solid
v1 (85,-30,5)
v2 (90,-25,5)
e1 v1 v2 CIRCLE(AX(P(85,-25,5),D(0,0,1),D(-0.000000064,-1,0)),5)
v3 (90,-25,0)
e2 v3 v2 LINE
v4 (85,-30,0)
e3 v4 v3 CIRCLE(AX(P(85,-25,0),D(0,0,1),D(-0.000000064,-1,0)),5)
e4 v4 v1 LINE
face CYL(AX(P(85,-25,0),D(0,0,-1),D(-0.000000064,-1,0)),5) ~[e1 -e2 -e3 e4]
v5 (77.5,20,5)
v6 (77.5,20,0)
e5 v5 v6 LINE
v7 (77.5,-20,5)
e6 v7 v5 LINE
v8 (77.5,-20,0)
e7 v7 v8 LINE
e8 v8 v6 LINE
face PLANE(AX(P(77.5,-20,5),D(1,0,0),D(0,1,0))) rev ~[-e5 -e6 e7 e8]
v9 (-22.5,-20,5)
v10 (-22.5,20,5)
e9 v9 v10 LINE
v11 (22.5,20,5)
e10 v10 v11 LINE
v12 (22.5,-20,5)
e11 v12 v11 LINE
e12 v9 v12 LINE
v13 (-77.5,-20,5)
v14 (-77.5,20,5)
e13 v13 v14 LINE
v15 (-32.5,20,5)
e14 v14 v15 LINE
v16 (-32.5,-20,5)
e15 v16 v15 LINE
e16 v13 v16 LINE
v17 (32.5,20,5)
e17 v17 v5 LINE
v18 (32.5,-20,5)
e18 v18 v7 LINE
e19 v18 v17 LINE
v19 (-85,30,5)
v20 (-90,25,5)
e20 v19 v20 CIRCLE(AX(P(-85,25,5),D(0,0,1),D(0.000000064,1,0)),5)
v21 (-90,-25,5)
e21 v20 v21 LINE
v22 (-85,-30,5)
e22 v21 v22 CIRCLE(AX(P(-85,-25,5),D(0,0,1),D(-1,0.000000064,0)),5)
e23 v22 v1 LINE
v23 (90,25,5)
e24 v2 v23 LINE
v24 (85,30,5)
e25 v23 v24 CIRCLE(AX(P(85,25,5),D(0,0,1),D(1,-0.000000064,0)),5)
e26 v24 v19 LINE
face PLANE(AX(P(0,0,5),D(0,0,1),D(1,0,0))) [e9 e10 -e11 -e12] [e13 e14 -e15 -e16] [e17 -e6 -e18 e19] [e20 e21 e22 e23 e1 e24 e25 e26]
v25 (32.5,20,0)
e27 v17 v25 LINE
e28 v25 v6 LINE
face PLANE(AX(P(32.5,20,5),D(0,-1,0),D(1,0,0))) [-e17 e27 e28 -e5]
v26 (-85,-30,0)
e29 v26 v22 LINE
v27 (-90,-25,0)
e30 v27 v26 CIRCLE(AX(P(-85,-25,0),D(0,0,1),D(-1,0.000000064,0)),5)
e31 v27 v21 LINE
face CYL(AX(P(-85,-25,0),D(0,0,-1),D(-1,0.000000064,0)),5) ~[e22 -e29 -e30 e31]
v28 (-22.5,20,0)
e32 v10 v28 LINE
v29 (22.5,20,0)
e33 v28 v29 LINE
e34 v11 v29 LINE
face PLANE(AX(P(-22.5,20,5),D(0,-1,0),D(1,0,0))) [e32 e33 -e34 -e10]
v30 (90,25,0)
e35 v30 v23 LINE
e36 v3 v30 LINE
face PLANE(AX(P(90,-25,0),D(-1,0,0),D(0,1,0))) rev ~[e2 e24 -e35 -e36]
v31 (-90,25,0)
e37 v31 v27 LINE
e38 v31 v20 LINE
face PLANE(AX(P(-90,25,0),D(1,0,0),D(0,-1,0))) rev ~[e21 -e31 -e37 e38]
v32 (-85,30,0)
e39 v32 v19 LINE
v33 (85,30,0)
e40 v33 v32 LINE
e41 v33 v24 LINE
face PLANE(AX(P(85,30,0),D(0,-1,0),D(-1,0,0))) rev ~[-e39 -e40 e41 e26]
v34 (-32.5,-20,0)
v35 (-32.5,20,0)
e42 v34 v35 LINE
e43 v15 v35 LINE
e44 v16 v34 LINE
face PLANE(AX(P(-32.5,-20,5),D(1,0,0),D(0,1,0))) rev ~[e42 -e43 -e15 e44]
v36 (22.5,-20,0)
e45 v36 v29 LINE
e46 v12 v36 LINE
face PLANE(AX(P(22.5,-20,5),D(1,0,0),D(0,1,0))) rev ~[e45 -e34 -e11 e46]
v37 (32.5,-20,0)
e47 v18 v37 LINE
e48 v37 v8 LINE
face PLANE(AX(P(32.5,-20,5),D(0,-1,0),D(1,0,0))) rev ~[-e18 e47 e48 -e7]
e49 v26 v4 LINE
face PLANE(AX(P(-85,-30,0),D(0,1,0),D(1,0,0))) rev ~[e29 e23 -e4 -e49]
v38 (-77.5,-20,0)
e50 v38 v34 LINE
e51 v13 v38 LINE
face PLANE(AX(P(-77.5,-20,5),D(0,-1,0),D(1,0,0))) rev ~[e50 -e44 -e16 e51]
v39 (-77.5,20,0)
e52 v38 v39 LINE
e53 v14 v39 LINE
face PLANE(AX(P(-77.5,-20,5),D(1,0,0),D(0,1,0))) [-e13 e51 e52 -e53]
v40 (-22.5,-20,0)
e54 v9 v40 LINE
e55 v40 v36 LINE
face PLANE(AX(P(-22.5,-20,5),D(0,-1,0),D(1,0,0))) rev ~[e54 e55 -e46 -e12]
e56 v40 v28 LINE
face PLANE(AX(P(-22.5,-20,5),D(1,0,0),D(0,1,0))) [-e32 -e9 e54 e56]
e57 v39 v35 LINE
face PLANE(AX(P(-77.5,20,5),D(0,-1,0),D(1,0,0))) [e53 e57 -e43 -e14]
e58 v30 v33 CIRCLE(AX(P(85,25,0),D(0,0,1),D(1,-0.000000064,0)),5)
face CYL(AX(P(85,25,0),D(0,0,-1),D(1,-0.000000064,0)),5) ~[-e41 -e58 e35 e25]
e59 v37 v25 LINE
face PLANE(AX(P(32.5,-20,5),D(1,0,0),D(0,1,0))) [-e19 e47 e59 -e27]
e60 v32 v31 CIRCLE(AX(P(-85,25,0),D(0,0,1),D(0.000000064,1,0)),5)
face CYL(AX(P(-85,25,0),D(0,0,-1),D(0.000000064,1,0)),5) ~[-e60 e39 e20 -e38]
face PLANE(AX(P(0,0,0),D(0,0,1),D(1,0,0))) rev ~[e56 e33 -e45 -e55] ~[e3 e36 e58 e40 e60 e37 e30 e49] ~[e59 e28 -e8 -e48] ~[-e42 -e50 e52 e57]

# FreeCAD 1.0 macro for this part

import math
import FreeCAD as App
import Part
import Sketcher
Q = App.Units.Quantity

doc = App.newDocument("Part")
params = doc.addObject("Spreadsheet::Sheet", "Params")
for row, (alias, value) in enumerate([
    ("sketch1_radius", "5 mm"),
    ("sketch1_width", "170 mm"),
    ("sketch1_height", "50 mm"),
    ("pad1_length", "5 mm"),
    ("sketch2_width", "45 mm"),
    ("sketch2_height", "40 mm"),
    ("pocket1_length", "5 mm"),
], start=1):
    params.set(f"A{row}", alias)
    params.set(f"B{row}", "=" + value)
    params.setAlias(f"B{row}", alias)

body = doc.addObject("PartDesign::Body", "Body")

sketch1 = doc.addObject("Sketcher::SketchObject", "Sketch")
body.addObject(sketch1)
sketch1.AttachmentSupport = (doc.XY_Plane, [""])
sketch1.MapMode = "FlatFace"
sketch1.addGeometry([
    Part.LineSegment(App.Vector(-85, -30, 0), App.Vector(85, -30, 0)),
    Part.ArcOfCircle(Part.Circle(App.Vector(85, -25, 0), App.Vector(0, 0, 1), 5), math.radians(-90), math.radians(0)),
    Part.LineSegment(App.Vector(90, -25, 0), App.Vector(90, 25, 0)),
    Part.ArcOfCircle(Part.Circle(App.Vector(85, 25, 0), App.Vector(0, 0, 1), 5), math.radians(0), math.radians(90)),
    Part.LineSegment(App.Vector(85, 30, 0), App.Vector(-85, 30, 0)),
    Part.ArcOfCircle(Part.Circle(App.Vector(-85, 25, 0), App.Vector(0, 0, 1), 5), math.radians(90), math.radians(180)),
    Part.LineSegment(App.Vector(-90, 25, 0), App.Vector(-90, -25, 0)),
    Part.ArcOfCircle(Part.Circle(App.Vector(-85, -25, 0), App.Vector(0, 0, 1), 5), math.radians(180), math.radians(270)),
], False)
sketch1.addConstraint([
    Sketcher.Constraint("Tangent", 0, 2, 1, 1),
    Sketcher.Constraint("Tangent", 1, 2, 2, 1),
    Sketcher.Constraint("Tangent", 2, 2, 3, 1),
    Sketcher.Constraint("Tangent", 3, 2, 4, 1),
    Sketcher.Constraint("Tangent", 4, 2, 5, 1),
    Sketcher.Constraint("Tangent", 5, 2, 6, 1),
    Sketcher.Constraint("Tangent", 6, 2, 7, 1),
    Sketcher.Constraint("Tangent", 7, 2, 0, 1),
    Sketcher.Constraint("Horizontal", 0),
    Sketcher.Constraint("Vertical", 2),
    Sketcher.Constraint("Horizontal", 4),
    Sketcher.Constraint("Vertical", 6),
    Sketcher.Constraint("Equal", 1, 3),
    Sketcher.Constraint("Equal", 3, 5),
    Sketcher.Constraint("Equal", 5, 7),
    Sketcher.Constraint("Symmetric", 1, 3, 5, 3, -1, 1),
    Sketcher.Constraint("Radius", 1, Q("5 mm")),
    Sketcher.Constraint("DistanceX", 0, 1, 0, 2, Q("170 mm")),
    Sketcher.Constraint("DistanceY", 2, 1, 2, 2, Q("50 mm")),
])
sketch1.setExpression("Constraints[16]", "Params.sketch1_radius")
sketch1.setExpression("Constraints[17]", "Params.sketch1_width")
sketch1.setExpression("Constraints[18]", "Params.sketch1_height")
pad1 = doc.addObject("PartDesign::Pad", "Pad")
body.addObject(pad1)
pad1.Profile = sketch1
pad1.setExpression("Length", "Params.pad1_length")

sketch2 = doc.addObject("Sketcher::SketchObject", "Sketch001")
body.addObject(sketch2)
sketch2.AttachmentSupport = (doc.XY_Plane, [""])
sketch2.MapMode = "FlatFace"
sketch2.AttachmentOffset = App.Placement(App.Vector(0, 0, 5), App.Rotation())
sketch2.addGeometry([
    Part.LineSegment(App.Vector(-22, 20, 0), App.Vector(-22, -20, 0)),
    Part.LineSegment(App.Vector(-22, -20, 0), App.Vector(22, -20, 0)),
    Part.LineSegment(App.Vector(22, -20, 0), App.Vector(22, 20, 0)),
    Part.LineSegment(App.Vector(22, 20, 0), App.Vector(-22, 20, 0)),
    Part.LineSegment(App.Vector(32, 20, 0), App.Vector(32, -20, 0)),
    Part.LineSegment(App.Vector(32, -20, 0), App.Vector(78, -20, 0)),
    Part.LineSegment(App.Vector(78, -20, 0), App.Vector(78, 20, 0)),
    Part.LineSegment(App.Vector(78, 20, 0), App.Vector(32, 20, 0)),
    Part.LineSegment(App.Vector(-78, 20, 0), App.Vector(-78, -20, 0)),
    Part.LineSegment(App.Vector(-78, -20, 0), App.Vector(-32, -20, 0)),
    Part.LineSegment(App.Vector(-32, -20, 0), App.Vector(-32, 20, 0)),
    Part.LineSegment(App.Vector(-32, 20, 0), App.Vector(-78, 20, 0)),
], False)
sketch2.addConstraint([
    Sketcher.Constraint("Coincident", 0, 2, 1, 1),
    Sketcher.Constraint("Coincident", 1, 2, 2, 1),
    Sketcher.Constraint("Coincident", 2, 2, 3, 1),
    Sketcher.Constraint("Coincident", 3, 2, 0, 1),
    Sketcher.Constraint("Coincident", 4, 2, 5, 1),
    Sketcher.Constraint("Coincident", 5, 2, 6, 1),
    Sketcher.Constraint("Coincident", 6, 2, 7, 1),
    Sketcher.Constraint("Coincident", 7, 2, 4, 1),
    Sketcher.Constraint("Coincident", 8, 2, 9, 1),
    Sketcher.Constraint("Coincident", 9, 2, 10, 1),
    Sketcher.Constraint("Coincident", 10, 2, 11, 1),
    Sketcher.Constraint("Coincident", 11, 2, 8, 1),
    Sketcher.Constraint("Vertical", 0),
    Sketcher.Constraint("Horizontal", 1),
    Sketcher.Constraint("Vertical", 2),
    Sketcher.Constraint("Horizontal", 3),
    Sketcher.Constraint("Vertical", 4),
    Sketcher.Constraint("Horizontal", 5),
    Sketcher.Constraint("Vertical", 6),
    Sketcher.Constraint("Horizontal", 7),
    Sketcher.Constraint("Vertical", 8),
    Sketcher.Constraint("Horizontal", 9),
    Sketcher.Constraint("Vertical", 10),
    Sketcher.Constraint("Horizontal", 11),
    Sketcher.Constraint("Symmetric", 0, 2, 2, 2, -1, 1),
    Sketcher.Constraint("Symmetric", 6, 2, 8, 2, -1, 1),
    Sketcher.Constraint("Symmetric", 4, 2, 10, 2, -1, 1),
    Sketcher.Constraint("Horizontal", 1, 2, 4, 2),
    Sketcher.Constraint("Horizontal", 3, 2, 6, 2),
    Sketcher.Constraint("Equal", 3, 5),
    Sketcher.Constraint("DistanceX", 1, 1, 1, 2, Q("45 mm")),
    Sketcher.Constraint("DistanceY", 0, 2, 0, 1, Q("40 mm")),
    Sketcher.Constraint("DistanceX", 1, 2, 4, 2, Q("10 mm")),
])
sketch2.setExpression("Constraints[30]", "Params.sketch2_width")
sketch2.setExpression("Constraints[31]", "Params.sketch2_height")
pocket1 = doc.addObject("PartDesign::Pocket", "Pocket")
body.addObject(pocket1)
pocket1.Profile = sketch2
pocket1.setExpression("Length", "Params.pocket1_length")

doc.recompute()
